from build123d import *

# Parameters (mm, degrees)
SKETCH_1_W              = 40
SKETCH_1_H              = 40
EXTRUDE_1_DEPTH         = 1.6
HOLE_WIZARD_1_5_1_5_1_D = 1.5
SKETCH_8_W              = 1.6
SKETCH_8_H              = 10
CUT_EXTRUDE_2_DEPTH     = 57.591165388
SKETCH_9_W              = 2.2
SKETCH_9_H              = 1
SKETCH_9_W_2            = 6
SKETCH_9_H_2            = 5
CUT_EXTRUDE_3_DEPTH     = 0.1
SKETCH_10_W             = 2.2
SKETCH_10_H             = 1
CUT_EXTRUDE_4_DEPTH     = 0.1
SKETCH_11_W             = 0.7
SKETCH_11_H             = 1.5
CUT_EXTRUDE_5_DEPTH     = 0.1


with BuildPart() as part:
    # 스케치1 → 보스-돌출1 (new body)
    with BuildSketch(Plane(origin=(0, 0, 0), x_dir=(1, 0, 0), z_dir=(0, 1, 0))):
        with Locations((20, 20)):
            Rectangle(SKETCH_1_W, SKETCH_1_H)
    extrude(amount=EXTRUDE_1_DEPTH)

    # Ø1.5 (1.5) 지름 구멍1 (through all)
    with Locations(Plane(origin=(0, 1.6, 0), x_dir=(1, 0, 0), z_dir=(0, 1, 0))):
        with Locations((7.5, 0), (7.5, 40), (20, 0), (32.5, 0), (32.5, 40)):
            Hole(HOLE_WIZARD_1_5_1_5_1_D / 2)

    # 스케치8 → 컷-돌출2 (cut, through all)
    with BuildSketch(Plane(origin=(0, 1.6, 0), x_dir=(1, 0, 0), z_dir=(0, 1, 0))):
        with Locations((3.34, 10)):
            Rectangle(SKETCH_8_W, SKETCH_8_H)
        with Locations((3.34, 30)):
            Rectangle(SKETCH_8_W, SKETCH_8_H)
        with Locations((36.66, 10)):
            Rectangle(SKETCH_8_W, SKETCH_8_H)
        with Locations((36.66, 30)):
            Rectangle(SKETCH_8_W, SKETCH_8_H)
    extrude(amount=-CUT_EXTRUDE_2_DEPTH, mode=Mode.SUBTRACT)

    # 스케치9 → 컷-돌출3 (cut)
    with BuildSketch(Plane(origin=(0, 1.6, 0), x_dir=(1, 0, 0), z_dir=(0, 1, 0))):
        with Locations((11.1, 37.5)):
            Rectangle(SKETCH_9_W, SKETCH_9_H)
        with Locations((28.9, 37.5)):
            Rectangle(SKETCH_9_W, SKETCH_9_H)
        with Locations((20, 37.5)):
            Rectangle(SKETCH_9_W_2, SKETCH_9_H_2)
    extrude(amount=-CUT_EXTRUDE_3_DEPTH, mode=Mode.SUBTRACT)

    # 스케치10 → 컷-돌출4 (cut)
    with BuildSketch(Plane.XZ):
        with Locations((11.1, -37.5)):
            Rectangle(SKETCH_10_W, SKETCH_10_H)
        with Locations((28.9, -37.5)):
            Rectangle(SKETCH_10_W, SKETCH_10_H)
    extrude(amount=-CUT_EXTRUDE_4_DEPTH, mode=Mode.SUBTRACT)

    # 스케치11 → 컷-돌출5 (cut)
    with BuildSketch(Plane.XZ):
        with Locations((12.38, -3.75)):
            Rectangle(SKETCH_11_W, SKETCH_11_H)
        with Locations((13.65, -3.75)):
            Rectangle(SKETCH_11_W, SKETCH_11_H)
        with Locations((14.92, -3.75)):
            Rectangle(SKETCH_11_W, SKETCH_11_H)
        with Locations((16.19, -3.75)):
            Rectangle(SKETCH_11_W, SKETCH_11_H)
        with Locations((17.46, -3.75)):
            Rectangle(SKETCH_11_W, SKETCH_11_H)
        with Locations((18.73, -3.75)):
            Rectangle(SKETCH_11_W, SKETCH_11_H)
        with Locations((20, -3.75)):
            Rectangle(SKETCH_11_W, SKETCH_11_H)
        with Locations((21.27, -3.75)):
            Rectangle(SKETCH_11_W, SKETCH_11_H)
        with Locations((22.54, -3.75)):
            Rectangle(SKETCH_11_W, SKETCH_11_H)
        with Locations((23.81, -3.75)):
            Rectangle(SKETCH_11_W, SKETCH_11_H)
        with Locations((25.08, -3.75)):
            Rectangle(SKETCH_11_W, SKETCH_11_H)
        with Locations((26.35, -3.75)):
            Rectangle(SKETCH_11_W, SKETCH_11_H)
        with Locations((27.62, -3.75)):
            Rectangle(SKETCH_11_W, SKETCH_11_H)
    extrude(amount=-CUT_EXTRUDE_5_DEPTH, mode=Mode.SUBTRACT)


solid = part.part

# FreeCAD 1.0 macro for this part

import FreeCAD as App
import Part
import Sketcher
Q = App.Units.Quantity


def add_polygon(sketch, points):
    """Adds a closed chain of lines whose ends are joined by coincident constraints."""
    first, n = sketch.GeometryCount, len(points)
    for a, b in zip(points, points[1:] + points[:1]):
        sketch.addGeometry(Part.LineSegment(App.Vector(*a, 0), App.Vector(*b, 0)), False)
    for i in range(n):
        sketch.addConstraint(Sketcher.Constraint("Coincident", first + i, 2, first + (i + 1) % n, 1))

doc = App.newDocument("Part")
body = doc.addObject("PartDesign::Body", "Body")

# Sketch on XZ plane
sketch1 = body.newObject("Sketcher::SketchObject", "Sketch")
sketch1.AttachmentSupport = (doc.getObject("XZ_Plane"), [""])
sketch1.MapMode = "FlatFace"
add_polygon(sketch1, [(0, -40), (0, 0), (40, 0), (40, -40)])  # lines 0-3
sketch1.addConstraint([
    Sketcher.Constraint("Vertical", 0),
    Sketcher.Constraint("Horizontal", 1),
    Sketcher.Constraint("Vertical", 2),
    Sketcher.Constraint("Horizontal", 3),
    Sketcher.Constraint("Coincident", 0, 2, -1, 1),
    Sketcher.Constraint("Equal", 3, 0),
    Sketcher.Constraint("DistanceX", 1, 1, 1, 2, Q("40 mm")),
])
pad1 = body.newObject("PartDesign::Pad", "Pad")
pad1.Profile = sketch1
pad1.Length = 1.6
pad1.Reversed = True

# Sketch on XZ plane
sketch2 = body.newObject("Sketcher::SketchObject", "Sketch001")
sketch2.AttachmentSupport = (doc.getObject("XZ_Plane"), [""])
sketch2.MapMode = "FlatFace"
sketch2.AttachmentOffset = App.Placement(App.Vector(0, 0, -1.6), App.Rotation())
sketch2.addGeometry([
    Part.Circle(App.Vector(7.5, 0, 0), App.Vector(0, 0, 1), 0.75),  # 0
    Part.Circle(App.Vector(7.5, -40, 0), App.Vector(0, 0, 1), 0.75),  # 1
    Part.Circle(App.Vector(20, 0, 0), App.Vector(0, 0, 1), 0.75),  # 2
    Part.Circle(App.Vector(32.5, 0, 0), App.Vector(0, 0, 1), 0.75),  # 3
    Part.Circle(App.Vector(32.5, -40, 0), App.Vector(0, 0, 1), 0.75),  # 4
], False)
sketch2.addConstraint([
    Sketcher.Constraint("Equal", 0, 1),
    Sketcher.Constraint("Equal", 1, 2),
    Sketcher.Constraint("Equal", 2, 3),
    Sketcher.Constraint("Equal", 3, 4),
    Sketcher.Constraint("PointOnObject", 0, 3, -1),
    Sketcher.Constraint("PointOnObject", 2, 3, -1),
    Sketcher.Constraint("PointOnObject", 3, 3, -1),
    Sketcher.Constraint("Horizontal", 1, 3, 4, 3),
    Sketcher.Constraint("Vertical", 0, 3, 1, 3),
    Sketcher.Constraint("Vertical", 3, 3, 4, 3),
    Sketcher.Constraint("Diameter", 0, Q("1.5 mm")),
    Sketcher.Constraint("DistanceY", 1, 3, -1, 1, Q("40 mm")),
    Sketcher.Constraint("DistanceX", -1, 1, 2, 3, Q("20 mm")),
    Sketcher.Constraint("DistanceX", 0, 3, 3, 3, Q("25 mm")),
    Sketcher.Constraint("DistanceX", -1, 1, 0, 3, Q("7.5 mm")),
])
doc.recompute()
hole = body.newObject("PartDesign::Hole", "Hole")
hole.Profile = sketch2
hole.ThreadType = "None"
hole.Diameter = 1.5
hole.DepthType = "ThroughAll"
hole.Reversed = True

# Sketch on XZ plane
sketch3 = body.newObject("Sketcher::SketchObject", "Sketch002")
sketch3.AttachmentSupport = (doc.getObject("XZ_Plane"), [""])
sketch3.MapMode = "FlatFace"
sketch3.AttachmentOffset = App.Placement(App.Vector(0, 0, -1.6), App.Rotation())
add_polygon(sketch3, [(2.54, -15), (2.54, -5), (4.14, -5), (4.14, -15)])  # lines 0-3
add_polygon(sketch3, [(2.54, -35), (2.54, -25), (4.14, -25), (4.14, -35)])  # lines 4-7
add_polygon(sketch3, [(35.86, -15), (35.86, -5), (37.46, -5), (37.46, -15)])  # lines 8-11
add_polygon(sketch3, [(35.86, -35), (35.86, -25), (37.46, -25), (37.46, -35)])  # lines 12-15
sketch3.addConstraint([
    Sketcher.Constraint("Vertical", 0),
    Sketcher.Constraint("Horizontal", 1),
    Sketcher.Constraint("Vertical", 2),
    Sketcher.Constraint("Horizontal", 3),
    Sketcher.Constraint("Vertical", 4),
    Sketcher.Constraint("Horizontal", 5),
    Sketcher.Constraint("Vertical", 6),
    Sketcher.Constraint("Horizontal", 7),
    Sketcher.Constraint("Vertical", 8),
    Sketcher.Constraint("Horizontal", 9),
    Sketcher.Constraint("Vertical", 10),
    Sketcher.Constraint("Horizontal", 11),
    Sketcher.Constraint("Vertical", 12),
    Sketcher.Constraint("Horizontal", 13),
    Sketcher.Constraint("Vertical", 14),
    Sketcher.Constraint("Horizontal", 15),
    Sketcher.Constraint("Horizontal", 1, 2, 8, 2),
    Sketcher.Constraint("Horizontal", 3, 2, 10, 2),
    Sketcher.Constraint("Horizontal", 5, 2, 12, 2),
    Sketcher.Constraint("Horizontal", 7, 2, 14, 2),
    Sketcher.Constraint("Vertical", 3, 2, 4, 2),
    Sketcher.Constraint("Vertical", 2, 2, 5, 2),
    Sketcher.Constraint("Vertical", 11, 2, 12, 2),
    Sketcher.Constraint("Vertical", 10, 2, 13, 2),
    Sketcher.Constraint("Equal", 7, 9),
    Sketcher.Constraint("Equal", 2, 4),
    Sketcher.Constraint("DistanceY", 0, 1, 0, 2, Q("10 mm")),
    Sketcher.Constraint("DistanceX", 1, 1, 1, 2, Q("1.6 mm")),
    Sketcher.Constraint("DistanceY", 0, 2, -1, 1, Q("5 mm")),
    Sketcher.Constraint("DistanceY", 4, 2, -1, 1, Q("25 mm")),
    Sketcher.Constraint("DistanceX", -1, 1, 0, 2, Q("2.54 mm")),
    Sketcher.Constraint("DistanceX", -1, 1, 8, 2, Q("35.86 mm")),
])
pocket1 = body.newObject("PartDesign::Pocket", "Pocket")
pocket1.Profile = sketch3
pocket1.Type = "ThroughAll"
pocket1.Reversed = True

# Sketch on XZ plane
sketch4 = body.newObject("Sketcher::SketchObject", "Sketch003")
sketch4.AttachmentSupport = (doc.getObject("XZ_Plane"), [""])
sketch4.MapMode = "FlatFace"
sketch4.AttachmentOffset = App.Placement(App.Vector(0, 0, -1.6), App.Rotation())
add_polygon(sketch4, [(10, -38), (10, -37), (12.2, -37), (12.2, -38)])  # lines 0-3
add_polygon(sketch4, [(27.8, -38), (27.8, -37), (30, -37), (30, -38)])  # lines 4-7
add_polygon(sketch4, [(17, -40), (17, -35), (23, -35), (23, -40)])  # lines 8-11
sketch4.addConstraint([
    Sketcher.Constraint("Vertical", 0),
    Sketcher.Constraint("Horizontal", 1),
    Sketcher.Constraint("Vertical", 2),
    Sketcher.Constraint("Horizontal", 3),
    Sketcher.Constraint("Vertical", 4),
    Sketcher.Constraint("Horizontal", 5),
    Sketcher.Constraint("Vertical", 6),
    Sketcher.Constraint("Horizontal", 7),
    Sketcher.Constraint("Vertical", 8),
    Sketcher.Constraint("Horizontal", 9),
    Sketcher.Constraint("Vertical", 10),
    Sketcher.Constraint("Horizontal", 11),
    Sketcher.Constraint("Horizontal", 1, 2, 4, 2),
    Sketcher.Constraint("Horizontal", 3, 2, 6, 2),
    Sketcher.Constraint("Equal", 3, 5),
    Sketcher.Constraint("DistanceX", 9, 1, 9, 2, Q("6 mm")),
    Sketcher.Constraint("DistanceY", 0, 1, 0, 2, Q("1 mm")),
    Sketcher.Constraint("DistanceY", 8, 1, 8, 2, Q("5 mm")),
    Sketcher.Constraint("DistanceX", 1, 1, 1, 2, Q("2.2 mm")),
    Sketcher.Constraint("DistanceX", -1, 1, 0, 2, Q("10 mm")),
    Sketcher.Constraint("DistanceY", 0, 2, -1, 1, Q("37 mm")),
    Sketcher.Constraint("DistanceX", -1, 1, 5, 2, Q("30 mm")),
    Sketcher.Constraint("DistanceX", -1, 1, 8, 2, Q("17 mm")),
    Sketcher.Constraint("DistanceY", 8, 2, -1, 1, Q("35 mm")),
])
pocket2 = body.newObject("PartDesign::Pocket", "Pocket001")
pocket2.Profile = sketch4
pocket2.Length = 0.1
pocket2.Reversed = True

# Sketch on XZ plane
sketch5 = body.newObject("Sketcher::SketchObject", "Sketch004")
sketch5.AttachmentSupport = (doc.getObject("XZ_Plane"), [""])
sketch5.MapMode = "FlatFace"
add_polygon(sketch5, [(10, -37), (10, -38), (12.2, -38), (12.2, -37)])  # lines 0-3
add_polygon(sketch5, [(27.8, -37), (27.8, -38), (30, -38), (30, -37)])  # lines 4-7
sketch5.addConstraint([
    Sketcher.Constraint("Vertical", 0),
    Sketcher.Constraint("Horizontal", 1),
    Sketcher.Constraint("Vertical", 2),
    Sketcher.Constraint("Horizontal", 3),
    Sketcher.Constraint("Vertical", 4),
    Sketcher.Constraint("Horizontal", 5),
    Sketcher.Constraint("Vertical", 6),
    Sketcher.Constraint("Horizontal", 7),
    Sketcher.Constraint("Horizontal", 1, 2, 4, 2),
    Sketcher.Constraint("Horizontal", 3, 2, 6, 2),
    Sketcher.Constraint("Equal", 3, 5),
    Sketcher.Constraint("DistanceY", 0, 2, 0, 1, Q("1 mm")),
    Sketcher.Constraint("DistanceX", 1, 1, 1, 2, Q("2.2 mm")),
    Sketcher.Constraint("DistanceX", -1, 1, 0, 2, Q("10 mm")),
    Sketcher.Constraint("DistanceY", 0, 2, -1, 1, Q("38 mm")),
    Sketcher.Constraint("DistanceX", -1, 1, 5, 2, Q("30 mm")),
])
pocket3 = body.newObject("PartDesign::Pocket", "Pocket002")
pocket3.Profile = sketch5
pocket3.Length = 0.1

# Sketch on XZ plane
sketch6 = body.newObject("Sketcher::SketchObject", "Sketch005")
sketch6.AttachmentSupport = (doc.getObject("XZ_Plane"), [""])
sketch6.MapMode = "FlatFace"
add_polygon(sketch6, [(12.03, -3), (12.03, -4.5), (12.73, -4.5), (12.73, -3)])  # lines 0-3
add_polygon(sketch6, [(13.3, -3), (13.3, -4.5), (14, -4.5), (14, -3)])  # lines 4-7
add_polygon(sketch6, [(14.57, -3), (14.57, -4.5), (15.27, -4.5), (15.27, -3)])  # lines 8-11
add_polygon(sketch6, [(15.84, -3), (15.84, -4.5), (16.54, -4.5), (16.54, -3)])  # lines 12-15
add_polygon(sketch6, [(17.11, -3), (17.11, -4.5), (17.81, -4.5), (17.81, -3)])  # lines 16-19
add_polygon(sketch6, [(18.38, -3), (18.38, -4.5), (19.08, -4.5), (19.08, -3)])  # lines 20-23
add_polygon(sketch6, [(19.65, -3), (19.65, -4.5), (20.35, -4.5), (20.35, -3)])  # lines 24-27
add_polygon(sketch6, [(20.92, -3), (20.92, -4.5), (21.62, -4.5), (21.62, -3)])  # lines 28-31
add_polygon(sketch6, [(22.19, -3), (22.19, -4.5), (22.89, -4.5), (22.89, -3)])  # lines 32-35
add_polygon(sketch6, [(23.46, -3), (23.46, -4.5), (24.16, -4.5), (24.16, -3)])  # lines 36-39
add_polygon(sketch6, [(24.73, -3), (24.73, -4.5), (25.43, -4.5), (25.43, -3)])  # lines 40-43
add_polygon(sketch6, [(26, -3), (26, -4.5), (26.7, -4.5), (26.7, -3)])  # lines 44-47
add_polygon(sketch6, [(27.27, -3), (27.27, -4.5), (27.97, -4.5), (27.97, -3)])  # lines 48-51
sketch6.addConstraint([
    Sketcher.Constraint("Vertical", 0),
    Sketcher.Constraint("Horizontal", 1),
    Sketcher.Constraint("Vertical", 2),
    Sketcher.Constraint("Horizontal", 3),
    Sketcher.Constraint("Vertical", 4),
    Sketcher.Constraint("Horizontal", 5),
    Sketcher.Constraint("Vertical", 6),
    Sketcher.Constraint("Horizontal", 7),
    Sketcher.Constraint("Vertical", 8),
    Sketcher.Constraint("Horizontal", 9),
    Sketcher.Constraint("Vertical", 10),
    Sketcher.Constraint("Horizontal", 11),
    Sketcher.Constraint("Vertical", 12),
    Sketcher.Constraint("Horizontal", 13),
    Sketcher.Constraint("Vertical", 14),
    Sketcher.Constraint("Horizontal", 15),
    Sketcher.Constraint("Vertical", 16),
    Sketcher.Constraint("Horizontal", 17),
    Sketcher.Constraint("Vertical", 18),
    Sketcher.Constraint("Horizontal", 19),
    Sketcher.Constraint("Vertical", 20),
    Sketcher.Constraint("Horizontal", 21),
    Sketcher.Constraint("Vertical", 22),
    Sketcher.Constraint("Horizontal", 23),
    Sketcher.Constraint("Vertical", 24),
    Sketcher.Constraint("Horizontal", 25),
    Sketcher.Constraint("Vertical", 26),
    Sketcher.Constraint("Horizontal", 27),
    Sketcher.Constraint("Vertical", 28),
    Sketcher.Constraint("Horizontal", 29),
    Sketcher.Constraint("Vertical", 30),
    Sketcher.Constraint("Horizontal", 31),
    Sketcher.Constraint("Vertical", 32),
    Sketcher.Constraint("Horizontal", 33),
    Sketcher.Constraint("Vertical", 34),
    Sketcher.Constraint("Horizontal", 35),
    Sketcher.Constraint("Vertical", 36),
    Sketcher.Constraint("Horizontal", 37),
    Sketcher.Constraint("Vertical", 38),
    Sketcher.Constraint("Horizontal", 39),
    Sketcher.Constraint("Vertical", 40),
    Sketcher.Constraint("Horizontal", 41),
    Sketcher.Constraint("Vertical", 42),
    Sketcher.Constraint("Horizontal", 43),
    Sketcher.Constraint("Vertical", 44),
    Sketcher.Constraint("Horizontal", 45),
    Sketcher.Constraint("Vertical", 46),
    Sketcher.Constraint("Horizontal", 47),
    Sketcher.Constraint("Vertical", 48),
    Sketcher.Constraint("Horizontal", 49),
    Sketcher.Constraint("Vertical", 50),
    Sketcher.Constraint("Horizontal", 51),
    Sketcher.Constraint("Horizontal", 1, 2, 4, 2),
    Sketcher.Constraint("Horizontal", 3, 2, 6, 2),
    Sketcher.Constraint("Horizontal", 5, 2, 8, 2),
    Sketcher.Constraint("Horizontal", 7, 2, 10, 2),
    Sketcher.Constraint("Horizontal", 9, 2, 12, 2),
    Sketcher.Constraint("Horizontal", 11, 2, 14, 2),
    Sketcher.Constraint("Horizontal", 13, 2, 16, 2),
    Sketcher.Constraint("Horizontal", 15, 2, 18, 2),
    Sketcher.Constraint("Horizontal", 17, 2, 20, 2),
    Sketcher.Constraint("Horizontal", 19, 2, 22, 2),
    Sketcher.Constraint("Horizontal", 21, 2, 24, 2),
    Sketcher.Constraint("Horizontal", 23, 2, 26, 2),
    Sketcher.Constraint("Horizontal", 25, 2, 28, 2),
    Sketcher.Constraint("Horizontal", 27, 2, 30, 2),
    Sketcher.Constraint("Horizontal", 29, 2, 32, 2),
    Sketcher.Constraint("Horizontal", 31, 2, 34, 2),
    Sketcher.Constraint("Horizontal", 33, 2, 36, 2),
    Sketcher.Constraint("Horizontal", 35, 2, 38, 2),
    Sketcher.Constraint("Horizontal", 37, 2, 40, 2),
    Sketcher.Constraint("Horizontal", 39, 2, 42, 2),
    Sketcher.Constraint("Horizontal", 41, 2, 44, 2),
    Sketcher.Constraint("Horizontal", 43, 2, 46, 2),
    Sketcher.Constraint("Horizontal", 45, 2, 48, 2),
    Sketcher.Constraint("Horizontal", 47, 2, 50, 2),
    Sketcher.Constraint("Equal", 3, 5),
    Sketcher.Constraint("Equal", 7, 9),
    Sketcher.Constraint("Equal", 11, 13),
    Sketcher.Constraint("Equal", 15, 17),
    Sketcher.Constraint("Equal", 19, 21),
    Sketcher.Constraint("Equal", 23, 25),
    Sketcher.Constraint("Equal", 27, 29),
    Sketcher.Constraint("Equal", 31, 33),
    Sketcher.Constraint("Equal", 35, 37),
    Sketcher.Constraint("Equal", 39, 41),
    Sketcher.Constraint("Equal", 43, 45),
    Sketcher.Constraint("Equal", 47, 49),
    Sketcher.Constraint("DistanceX", 1, 1, 1, 2, Q("0.7 mm")),
    Sketcher.Constraint("DistanceY", 0, 2, 0, 1, Q("1.5 mm")),
    Sketcher.Constraint("DistanceY", 2, 2, -1, 1, Q("3 mm")),
    Sketcher.Constraint("DistanceX", -1, 1, 5, 2, Q("14 mm")),
    Sketcher.Constraint("DistanceX", -1, 1, 44, 2, Q("26 mm")),
    Sketcher.Constraint("DistanceX", -1, 1, 0, 2, Q("12.03 mm")),
    Sketcher.Constraint("DistanceX", -1, 1, 8, 2, Q("14.57 mm")),
    Sketcher.Constraint("DistanceX", -1, 1, 12, 2, Q("15.84 mm")),
    Sketcher.Constraint("DistanceX", -1, 1, 16, 2, Q("17.11 mm")),
    Sketcher.Constraint("DistanceX", -1, 1, 20, 2, Q("18.38 mm")),
    Sketcher.Constraint("DistanceX", -1, 1, 24, 2, Q("19.65 mm")),
    Sketcher.Constraint("DistanceX", -1, 1, 28, 2, Q("20.92 mm")),
    Sketcher.Constraint("DistanceX", -1, 1, 32, 2, Q("22.19 mm")),
    Sketcher.Constraint("DistanceX", -1, 1, 36, 2, Q("23.46 mm")),
    Sketcher.Constraint("DistanceX", -1, 1, 40, 2, Q("24.73 mm")),
    Sketcher.Constraint("DistanceX", -1, 1, 48, 2, Q("27.27 mm")),
])
pocket4 = body.newObject("PartDesign::Pocket", "Pocket003")
pocket4.Profile = sketch6
pocket4.Length = 0.1

doc.recompute()
